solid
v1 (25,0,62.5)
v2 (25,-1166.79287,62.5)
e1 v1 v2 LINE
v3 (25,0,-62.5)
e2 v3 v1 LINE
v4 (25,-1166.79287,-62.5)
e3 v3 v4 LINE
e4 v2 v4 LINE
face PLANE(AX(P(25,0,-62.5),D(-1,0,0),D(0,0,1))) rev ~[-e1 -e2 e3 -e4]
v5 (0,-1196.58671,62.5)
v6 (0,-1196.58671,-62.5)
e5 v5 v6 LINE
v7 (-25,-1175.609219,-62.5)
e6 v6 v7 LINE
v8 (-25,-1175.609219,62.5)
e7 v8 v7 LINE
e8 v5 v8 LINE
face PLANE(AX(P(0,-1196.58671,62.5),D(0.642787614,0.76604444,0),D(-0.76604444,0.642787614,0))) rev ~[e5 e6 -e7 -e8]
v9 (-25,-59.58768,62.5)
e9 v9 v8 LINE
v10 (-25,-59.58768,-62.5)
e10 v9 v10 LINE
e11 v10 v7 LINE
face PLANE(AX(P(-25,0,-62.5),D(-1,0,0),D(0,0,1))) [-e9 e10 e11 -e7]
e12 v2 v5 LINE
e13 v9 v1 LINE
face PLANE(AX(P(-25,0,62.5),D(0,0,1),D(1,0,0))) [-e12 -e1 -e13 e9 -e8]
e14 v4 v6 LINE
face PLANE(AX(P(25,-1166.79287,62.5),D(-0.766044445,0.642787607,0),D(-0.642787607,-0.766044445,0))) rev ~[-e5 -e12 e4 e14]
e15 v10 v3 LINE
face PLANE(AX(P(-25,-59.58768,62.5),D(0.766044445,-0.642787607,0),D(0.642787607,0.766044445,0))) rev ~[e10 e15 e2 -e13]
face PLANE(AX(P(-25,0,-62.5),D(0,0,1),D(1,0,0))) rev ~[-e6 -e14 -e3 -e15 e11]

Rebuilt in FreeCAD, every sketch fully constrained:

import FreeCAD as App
import Part
import Sketcher
Q = App.Units.Quantity


def add_polygon(sketch, points):
    """Adds a closed chain of lines whose ends are joined by coincident constraints."""
    first, n = sketch.GeometryCount, len(points)
    for a, b in zip(points, points[1:] + points[:1]):
        sketch.addGeometry(Part.LineSegment(App.Vector(*a, 0), App.Vector(*b, 0)), False)
    for i in range(n):
        sketch.addConstraint(Sketcher.Constraint("Coincident", first + i, 2, first + (i + 1) % n, 1))

doc = App.newDocument("Part")
params = doc.addObject("Spreadsheet::Sheet", "Params")
for row, (alias, value) in enumerate([
    ("sketch1_width", "50 mm"),
    ("sketch1_height", "125 mm"),
    ("pad1_length", "1200 mm"),
    ("sketch2_width", "50 mm"),
    ("sketch3_width", "50 mm"),
], start=1):
    params.set(f"A{row}", alias)
    params.set(f"B{row}", "=" + value)
    params.setAlias(f"B{row}", alias)

body = doc.addObject("PartDesign::Body", "Body")

# Sketch on XZ plane
sketch1 = doc.addObject("Sketcher::SketchObject", "Sketch")
body.addObject(sketch1)
sketch1.AttachmentSupport = (doc.XZ_Plane, [""])
sketch1.MapMode = "FlatFace"
add_polygon(sketch1, [(-25, 62), (-25, -62), (25, -62), (25, 62)])  # lines 0-3
sketch1.addConstraint([
    Sketcher.Constraint("Vertical", 0),
    Sketcher.Constraint("Horizontal", 1),
    Sketcher.Constraint("Vertical", 2),
    Sketcher.Constraint("Horizontal", 3),
    Sketcher.Constraint("Symmetric", 0, 2, 2, 2, -1, 1),
    Sketcher.Constraint("DistanceX", 1, 1, 1, 2, 50.0),
    Sketcher.Constraint("DistanceY", 0, 2, 0, 1, 125.0),
])
sketch1.setExpression("Constraints[9]", "Params.sketch1_width")
sketch1.setExpression("Constraints[10]", "Params.sketch1_height")
pad1 = doc.addObject("PartDesign::Pad", "Pad")
body.addObject(pad1)
pad1.Profile = sketch1
pad1.setExpression("Length", "Params.pad1_length")

# Sketch on XY plane
sketch2 = doc.addObject("Sketcher::SketchObject", "Sketch001")
body.addObject(sketch2)
sketch2.AttachmentSupport = (doc.XY_Plane, [""])
sketch2.MapMode = "FlatFace"
sketch2.AttachmentOffset = App.Placement(App.Vector(0, 0, 62.5), App.Rotation())
add_polygon(sketch2, [(-25, -60), (25, 0), (-25, 0)])  # lines 0-2
sketch2.addConstraint([
    Sketcher.Constraint("Horizontal", 1),
    Sketcher.Constraint("Vertical", 2),
    Sketcher.Constraint("Symmetric", 0, 2, 1, 2, -1, 1),
    Sketcher.Constraint("DistanceX", 1, 2, 1, 1, 50.0),
    Sketcher.Constraint("Angle", 0, Q("50 deg")),
])
sketch2.setExpression("Constraints[6]", "Params.sketch2_width")
pocket1 = doc.addObject("PartDesign::Pocket", "Pocket")
body.addObject(pocket1)
pocket1.Profile = sketch2
pocket1.Type = "ThroughAll"

# Sketch on XY plane
sketch3 = doc.addObject("Sketcher::SketchObject", "Sketch002")
body.addObject(sketch3)
sketch3.AttachmentSupport = (doc.XY_Plane, [""])
sketch3.MapMode = "FlatFace"
sketch3.AttachmentOffset = App.Placement(App.Vector(0, 0, 62.5), App.Rotation())
add_polygon(sketch3, [(0, -1197), (-25, -1176), (-25, -1200), (25, -1200), (25, -1167)])  # lines 0-4
sketch3.addConstraint([
    Sketcher.Constraint("Vertical", 1),
    Sketcher.Constraint("Horizontal", 2),
    Sketcher.Constraint("Vertical", 3),
    Sketcher.Constraint("PointOnObject", 4, 2, -2),
    Sketcher.Constraint("Perpendicular", 0, 4),
    Sketcher.Constraint("DistanceX", 2, 1, 2, 2, 50.0),
    Sketcher.Constraint("Angle", 0, Q("140 deg")),
    Sketcher.Constraint("DistanceX", 0, 2, -1, 1, 25.0),
    Sketcher.Constraint("DistanceY", 1, 2, -1, 1, 1200.0),
    Sketcher.Constraint("DistanceY", 1, 2, 1, 1, 24.390781),
])
sketch3.setExpression("Constraints[10]", "Params.sketch3_width")
pocket2 = doc.addObject("PartDesign::Pocket", "Pocket001")
body.addObject(pocket2)
pocket2.Profile = sketch3
pocket2.Type = "ThroughAll"

doc.recompute()
